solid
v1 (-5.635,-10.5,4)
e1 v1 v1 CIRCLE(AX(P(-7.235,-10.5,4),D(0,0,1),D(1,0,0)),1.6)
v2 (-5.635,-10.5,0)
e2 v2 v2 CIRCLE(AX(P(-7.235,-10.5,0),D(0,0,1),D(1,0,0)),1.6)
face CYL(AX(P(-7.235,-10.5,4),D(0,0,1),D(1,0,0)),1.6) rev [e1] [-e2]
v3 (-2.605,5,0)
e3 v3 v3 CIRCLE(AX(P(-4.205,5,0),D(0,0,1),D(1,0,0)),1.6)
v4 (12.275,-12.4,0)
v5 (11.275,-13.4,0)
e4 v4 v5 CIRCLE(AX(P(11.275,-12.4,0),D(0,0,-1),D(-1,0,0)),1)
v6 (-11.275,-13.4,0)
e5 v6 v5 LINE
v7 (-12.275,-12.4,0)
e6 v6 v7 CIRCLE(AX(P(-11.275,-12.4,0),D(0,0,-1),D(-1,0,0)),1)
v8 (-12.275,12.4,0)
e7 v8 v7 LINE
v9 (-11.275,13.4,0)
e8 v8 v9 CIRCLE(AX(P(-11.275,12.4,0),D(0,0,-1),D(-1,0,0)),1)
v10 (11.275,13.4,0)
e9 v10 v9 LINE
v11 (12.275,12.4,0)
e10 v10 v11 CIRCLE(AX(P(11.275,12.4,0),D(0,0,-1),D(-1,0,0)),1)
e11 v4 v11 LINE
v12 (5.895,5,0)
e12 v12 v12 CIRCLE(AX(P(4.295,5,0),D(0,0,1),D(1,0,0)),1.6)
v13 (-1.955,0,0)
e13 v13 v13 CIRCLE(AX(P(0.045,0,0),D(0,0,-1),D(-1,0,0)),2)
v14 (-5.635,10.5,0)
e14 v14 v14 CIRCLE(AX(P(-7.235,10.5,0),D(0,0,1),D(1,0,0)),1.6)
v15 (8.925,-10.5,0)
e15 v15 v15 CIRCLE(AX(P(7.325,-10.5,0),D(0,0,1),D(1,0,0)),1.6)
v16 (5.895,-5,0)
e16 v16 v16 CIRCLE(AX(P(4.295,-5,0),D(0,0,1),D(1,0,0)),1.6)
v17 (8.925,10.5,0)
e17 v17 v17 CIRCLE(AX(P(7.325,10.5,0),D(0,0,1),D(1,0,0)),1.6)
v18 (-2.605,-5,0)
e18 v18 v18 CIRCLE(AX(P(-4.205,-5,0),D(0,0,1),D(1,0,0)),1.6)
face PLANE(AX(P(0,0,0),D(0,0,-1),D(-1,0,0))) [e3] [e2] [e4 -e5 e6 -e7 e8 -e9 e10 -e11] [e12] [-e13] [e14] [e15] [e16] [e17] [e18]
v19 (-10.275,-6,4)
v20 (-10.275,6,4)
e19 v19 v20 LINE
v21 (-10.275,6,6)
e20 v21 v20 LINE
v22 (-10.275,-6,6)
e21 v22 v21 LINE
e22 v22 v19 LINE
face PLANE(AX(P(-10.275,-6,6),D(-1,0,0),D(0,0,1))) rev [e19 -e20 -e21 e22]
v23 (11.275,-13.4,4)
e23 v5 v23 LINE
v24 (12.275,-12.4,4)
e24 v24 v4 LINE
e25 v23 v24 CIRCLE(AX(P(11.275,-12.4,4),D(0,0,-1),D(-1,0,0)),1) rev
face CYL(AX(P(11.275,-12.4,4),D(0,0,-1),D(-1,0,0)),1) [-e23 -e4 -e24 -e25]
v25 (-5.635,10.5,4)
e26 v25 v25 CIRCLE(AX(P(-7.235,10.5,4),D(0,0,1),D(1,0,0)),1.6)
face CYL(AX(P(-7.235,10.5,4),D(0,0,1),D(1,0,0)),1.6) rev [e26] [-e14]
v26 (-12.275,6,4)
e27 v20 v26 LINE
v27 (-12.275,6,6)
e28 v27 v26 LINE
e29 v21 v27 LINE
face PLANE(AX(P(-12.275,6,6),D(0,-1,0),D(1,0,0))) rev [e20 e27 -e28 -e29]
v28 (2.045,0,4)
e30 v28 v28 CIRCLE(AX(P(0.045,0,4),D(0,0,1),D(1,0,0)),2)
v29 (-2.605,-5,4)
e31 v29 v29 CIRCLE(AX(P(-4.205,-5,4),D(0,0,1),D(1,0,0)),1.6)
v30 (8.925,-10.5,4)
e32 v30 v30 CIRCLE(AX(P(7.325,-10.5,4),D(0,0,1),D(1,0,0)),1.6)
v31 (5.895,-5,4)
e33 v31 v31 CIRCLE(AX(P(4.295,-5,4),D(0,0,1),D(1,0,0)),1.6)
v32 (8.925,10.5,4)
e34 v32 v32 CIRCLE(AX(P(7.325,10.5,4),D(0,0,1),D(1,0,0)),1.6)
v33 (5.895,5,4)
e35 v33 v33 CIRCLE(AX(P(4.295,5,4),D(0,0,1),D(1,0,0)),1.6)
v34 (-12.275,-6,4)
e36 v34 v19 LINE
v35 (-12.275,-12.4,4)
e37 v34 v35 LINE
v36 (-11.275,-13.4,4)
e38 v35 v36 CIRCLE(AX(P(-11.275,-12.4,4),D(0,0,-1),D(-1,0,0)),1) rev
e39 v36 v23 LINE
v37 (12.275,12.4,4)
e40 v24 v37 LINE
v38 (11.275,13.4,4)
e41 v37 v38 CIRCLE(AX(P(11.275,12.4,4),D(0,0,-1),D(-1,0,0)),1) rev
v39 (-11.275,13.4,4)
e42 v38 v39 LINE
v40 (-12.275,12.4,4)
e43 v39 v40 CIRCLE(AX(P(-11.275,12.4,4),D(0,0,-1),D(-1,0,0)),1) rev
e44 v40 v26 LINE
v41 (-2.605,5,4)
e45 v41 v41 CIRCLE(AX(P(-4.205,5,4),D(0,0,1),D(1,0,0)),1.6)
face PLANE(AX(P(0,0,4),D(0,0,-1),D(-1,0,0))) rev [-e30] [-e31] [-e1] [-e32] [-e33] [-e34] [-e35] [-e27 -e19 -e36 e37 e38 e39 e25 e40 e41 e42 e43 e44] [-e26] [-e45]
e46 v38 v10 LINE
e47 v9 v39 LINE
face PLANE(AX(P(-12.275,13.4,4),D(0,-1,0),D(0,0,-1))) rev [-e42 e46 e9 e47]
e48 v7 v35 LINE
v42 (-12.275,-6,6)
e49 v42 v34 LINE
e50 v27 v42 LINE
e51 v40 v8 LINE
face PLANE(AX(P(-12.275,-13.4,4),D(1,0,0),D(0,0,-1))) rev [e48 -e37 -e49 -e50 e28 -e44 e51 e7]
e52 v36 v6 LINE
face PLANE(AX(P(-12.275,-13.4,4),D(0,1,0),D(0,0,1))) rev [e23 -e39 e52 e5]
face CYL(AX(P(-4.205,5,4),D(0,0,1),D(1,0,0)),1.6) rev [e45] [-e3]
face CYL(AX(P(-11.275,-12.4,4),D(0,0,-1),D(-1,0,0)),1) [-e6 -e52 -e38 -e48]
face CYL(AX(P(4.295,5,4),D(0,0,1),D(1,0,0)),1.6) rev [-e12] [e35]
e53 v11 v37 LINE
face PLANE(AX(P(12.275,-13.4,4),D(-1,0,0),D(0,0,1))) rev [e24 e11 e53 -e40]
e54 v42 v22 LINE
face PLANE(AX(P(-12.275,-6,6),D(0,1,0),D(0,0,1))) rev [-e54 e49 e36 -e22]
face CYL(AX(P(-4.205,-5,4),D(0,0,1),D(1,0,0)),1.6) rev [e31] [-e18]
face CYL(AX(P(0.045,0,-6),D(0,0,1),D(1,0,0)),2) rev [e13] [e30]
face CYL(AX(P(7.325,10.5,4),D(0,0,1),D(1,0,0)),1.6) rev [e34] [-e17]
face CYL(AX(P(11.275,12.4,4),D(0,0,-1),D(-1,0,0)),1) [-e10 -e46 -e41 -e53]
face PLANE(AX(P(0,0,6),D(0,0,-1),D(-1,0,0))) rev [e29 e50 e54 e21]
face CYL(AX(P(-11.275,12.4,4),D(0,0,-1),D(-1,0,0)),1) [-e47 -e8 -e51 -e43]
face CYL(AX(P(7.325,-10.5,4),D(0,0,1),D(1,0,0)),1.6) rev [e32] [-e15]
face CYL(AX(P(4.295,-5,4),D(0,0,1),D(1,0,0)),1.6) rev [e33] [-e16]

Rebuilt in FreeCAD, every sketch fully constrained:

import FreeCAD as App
import Part
import Sketcher
from FreeCAD import Vector
Q = App.Units.Quantity


def edges_at(feature, points):
    """Names of the edges that pass closest to the given points."""
    edges = feature.Shape.Edges
    near = lambda p: min(range(len(edges)), key=lambda i: edges[i].distToShape(Part.Vertex(*p))[0])
    return sorted({f"Edge{near(p) + 1}" for p in points})


def add_polygon(sketch, points):
    """Adds a closed chain of lines whose ends are joined by coincident constraints."""
    first, n = sketch.GeometryCount, len(points)
    for a, b in zip(points, points[1:] + points[:1]):
        sketch.addGeometry(Part.LineSegment(App.Vector(*a, 0), App.Vector(*b, 0)), False)
    for i in range(n):
        sketch.addConstraint(Sketcher.Constraint("Coincident", first + i, 2, first + (i + 1) % n, 1))

doc = App.newDocument("Part")
body = doc.addObject("PartDesign::Body", "Body")

# Sketch on XY plane
sketch1 = doc.addObject("Sketcher::SketchObject", "Sketch")
body.addObject(sketch1)
sketch1.AttachmentSupport = (doc.XY_Plane, [""])
sketch1.MapMode = "FlatFace"
add_polygon(sketch1, [(-12, 13), (-12, -13), (12, -13), (12, 13)])  # lines 0-3
sketch1.addConstraint([
    Sketcher.Constraint("Vertical", 0),
    Sketcher.Constraint("Horizontal", 1),
    Sketcher.Constraint("Vertical", 2),
    Sketcher.Constraint("Horizontal", 3),
    Sketcher.Constraint("Symmetric", 0, 2, 2, 2, -1, 1),
    Sketcher.Constraint("DistanceY", 0, 2, 0, 1, Q("26.8 mm")),
    Sketcher.Constraint("DistanceX", 1, 1, 1, 2, Q("24.55 mm")),
])
pad1 = doc.addObject("PartDesign::Pad", "Pad")
body.addObject(pad1)
pad1.Profile = sketch1
pad1.Length = 4

# Sketch on XY plane
sketch2 = doc.addObject("Sketcher::SketchObject", "Sketch001")
body.addObject(sketch2)
sketch2.AttachmentSupport = (doc.XY_Plane, [""])
sketch2.MapMode = "FlatFace"
sketch2.AttachmentOffset = App.Placement(Vector(0, 0, 4), App.Rotation())
sketch2.addGeometry([
    Part.Circle(Vector(-4.2, 5, 0), Vector(0, 0, 1), 1.6),
    Part.Circle(Vector(4.3, 5, 0), Vector(0, 0, 1), 1.6),
    Part.Circle(Vector(4.3, -5, 0), Vector(0, 0, 1), 1.6),
    Part.Circle(Vector(-4.2, -5, 0), Vector(0, 0, 1), 1.6),
], False)
sketch2.addConstraint([
    Sketcher.Constraint("Equal", 0, 1),
    Sketcher.Constraint("Equal", 1, 2),
    Sketcher.Constraint("Equal", 2, 3),
    Sketcher.Constraint("Symmetric", 1, 3, 2, 3, -1),
    Sketcher.Constraint("Symmetric", 0, 3, 3, 3, -1),
    Sketcher.Constraint("Horizontal", 0, 3, 1, 3),
    Sketcher.Constraint("Diameter", 0, Q("3.2 mm")),
    Sketcher.Constraint("DistanceY", -1, 1, 0, 3, Q("5 mm")),
    Sketcher.Constraint("DistanceX", 0, 3, 1, 3, Q("8.5 mm")),
    Sketcher.Constraint("DistanceX", 0, 3, -1, 1, Q("4.205 mm")),
])
doc.recompute()
hole = doc.addObject("PartDesign::Hole", "Hole")
body.addObject(hole)
hole.Profile = sketch2
hole.ThreadType = "None"
hole.Diameter = 3.2
hole.DepthType = "ThroughAll"

# Sketch on XY plane
sketch3 = doc.addObject("Sketcher::SketchObject", "Sketch002")
body.addObject(sketch3)
sketch3.AttachmentSupport = (doc.XY_Plane, [""])
sketch3.MapMode = "FlatFace"
sketch3.AttachmentOffset = App.Placement(Vector(0, 0, 4), App.Rotation())
sketch3.addGeometry([
    Part.Circle(Vector(-7.2, 10.5, 0), Vector(0, 0, 1), 1.6),
    Part.Circle(Vector(7.3, 10.5, 0), Vector(0, 0, 1), 1.6),
    Part.Circle(Vector(-7.2, -10.5, 0), Vector(0, 0, 1), 1.6),
    Part.Circle(Vector(7.3, -10.5, 0), Vector(0, 0, 1), 1.6),
], False)
sketch3.addConstraint([
    Sketcher.Constraint("Equal", 0, 1),
    Sketcher.Constraint("Equal", 1, 2),
    Sketcher.Constraint("Equal", 2, 3),
    Sketcher.Constraint("Symmetric", 0, 3, 2, 3, -1),
    Sketcher.Constraint("Symmetric", 1, 3, 3, 3, -1),
    Sketcher.Constraint("Horizontal", 0, 3, 1, 3),
    Sketcher.Constraint("Diameter", 0, Q("3.2 mm")),
    Sketcher.Constraint("DistanceY", 2, 3, 0, 3, Q("21 mm")),
    Sketcher.Constraint("DistanceX", 0, 3, 1, 3, Q("14.56 mm")),
    Sketcher.Constraint("DistanceX", 0, 3, -1, 1, Q("7.235 mm")),
])
doc.recompute()
hole2 = doc.addObject("PartDesign::Hole", "Hole001")
body.addObject(hole2)
hole2.Profile = sketch3
hole2.ThreadType = "None"
hole2.Diameter = 3.2
hole2.DepthType = "ThroughAll"

# Sketch on XY plane
sketch4 = doc.addObject("Sketcher::SketchObject", "Sketch003")
body.addObject(sketch4)
sketch4.AttachmentSupport = (doc.XY_Plane, [""])
sketch4.MapMode = "FlatFace"
sketch4.AttachmentOffset = App.Placement(Vector(0, 0, 4), App.Rotation())
sketch4.addGeometry(Part.Circle(Vector(0, 0, 0), Vector(0, 0, 1), 2), False)
sketch4.addConstraint([
    Sketcher.Constraint("PointOnObject", 0, 3, -1),
    Sketcher.Constraint("Diameter", 0, Q("4 mm")),
    Sketcher.Constraint("DistanceX", -1, 1, 0, 3, Q("0.045 mm")),
])
pocket1 = doc.addObject("PartDesign::Pocket", "Pocket")
body.addObject(pocket1)
pocket1.Profile = sketch4
pocket1.Length = 10

# Sketch on XY plane
sketch5 = doc.addObject("Sketcher::SketchObject", "Sketch004")
body.addObject(sketch5)
sketch5.AttachmentSupport = (doc.XY_Plane, [""])
sketch5.MapMode = "FlatFace"
sketch5.AttachmentOffset = App.Placement(Vector(0, 0, 4), App.Rotation())
add_polygon(sketch5, [(-12.3, 6), (-12.3, -6), (-10.3, -6), (-10.3, 6)])  # lines 0-3
sketch5.addConstraint([
    Sketcher.Constraint("Vertical", 0),
    Sketcher.Constraint("Horizontal", 1),
    Sketcher.Constraint("Vertical", 2),
    Sketcher.Constraint("Horizontal", 3),
    Sketcher.Constraint("DistanceX", 1, 1, 1, 2, Q("2 mm")),
    Sketcher.Constraint("DistanceY", 0, 2, 0, 1, Q("12 mm")),
    Sketcher.Constraint("DistanceY", 0, 2, -1, 1, Q("6 mm")),
    Sketcher.Constraint("DistanceX", 0, 2, -1, 1, Q("12.275 mm")),
])
pad2 = doc.addObject("PartDesign::Pad", "Pad001")
body.addObject(pad2)
pad2.Profile = sketch5
pad2.Length = 2
doc.recompute()

fillet = doc.addObject("PartDesign::Fillet", "Fillet")
body.addObject(fillet)
fillet.Base = (pad2, edges_at(pad2, [
    (12.275, -13.4, 2),
    (-12.275, -13.4, 2),
    (-12.275, 13.4, 2),
    (12.275, 13.4, 2),
]))
fillet.Radius = 1

doc.recompute()
